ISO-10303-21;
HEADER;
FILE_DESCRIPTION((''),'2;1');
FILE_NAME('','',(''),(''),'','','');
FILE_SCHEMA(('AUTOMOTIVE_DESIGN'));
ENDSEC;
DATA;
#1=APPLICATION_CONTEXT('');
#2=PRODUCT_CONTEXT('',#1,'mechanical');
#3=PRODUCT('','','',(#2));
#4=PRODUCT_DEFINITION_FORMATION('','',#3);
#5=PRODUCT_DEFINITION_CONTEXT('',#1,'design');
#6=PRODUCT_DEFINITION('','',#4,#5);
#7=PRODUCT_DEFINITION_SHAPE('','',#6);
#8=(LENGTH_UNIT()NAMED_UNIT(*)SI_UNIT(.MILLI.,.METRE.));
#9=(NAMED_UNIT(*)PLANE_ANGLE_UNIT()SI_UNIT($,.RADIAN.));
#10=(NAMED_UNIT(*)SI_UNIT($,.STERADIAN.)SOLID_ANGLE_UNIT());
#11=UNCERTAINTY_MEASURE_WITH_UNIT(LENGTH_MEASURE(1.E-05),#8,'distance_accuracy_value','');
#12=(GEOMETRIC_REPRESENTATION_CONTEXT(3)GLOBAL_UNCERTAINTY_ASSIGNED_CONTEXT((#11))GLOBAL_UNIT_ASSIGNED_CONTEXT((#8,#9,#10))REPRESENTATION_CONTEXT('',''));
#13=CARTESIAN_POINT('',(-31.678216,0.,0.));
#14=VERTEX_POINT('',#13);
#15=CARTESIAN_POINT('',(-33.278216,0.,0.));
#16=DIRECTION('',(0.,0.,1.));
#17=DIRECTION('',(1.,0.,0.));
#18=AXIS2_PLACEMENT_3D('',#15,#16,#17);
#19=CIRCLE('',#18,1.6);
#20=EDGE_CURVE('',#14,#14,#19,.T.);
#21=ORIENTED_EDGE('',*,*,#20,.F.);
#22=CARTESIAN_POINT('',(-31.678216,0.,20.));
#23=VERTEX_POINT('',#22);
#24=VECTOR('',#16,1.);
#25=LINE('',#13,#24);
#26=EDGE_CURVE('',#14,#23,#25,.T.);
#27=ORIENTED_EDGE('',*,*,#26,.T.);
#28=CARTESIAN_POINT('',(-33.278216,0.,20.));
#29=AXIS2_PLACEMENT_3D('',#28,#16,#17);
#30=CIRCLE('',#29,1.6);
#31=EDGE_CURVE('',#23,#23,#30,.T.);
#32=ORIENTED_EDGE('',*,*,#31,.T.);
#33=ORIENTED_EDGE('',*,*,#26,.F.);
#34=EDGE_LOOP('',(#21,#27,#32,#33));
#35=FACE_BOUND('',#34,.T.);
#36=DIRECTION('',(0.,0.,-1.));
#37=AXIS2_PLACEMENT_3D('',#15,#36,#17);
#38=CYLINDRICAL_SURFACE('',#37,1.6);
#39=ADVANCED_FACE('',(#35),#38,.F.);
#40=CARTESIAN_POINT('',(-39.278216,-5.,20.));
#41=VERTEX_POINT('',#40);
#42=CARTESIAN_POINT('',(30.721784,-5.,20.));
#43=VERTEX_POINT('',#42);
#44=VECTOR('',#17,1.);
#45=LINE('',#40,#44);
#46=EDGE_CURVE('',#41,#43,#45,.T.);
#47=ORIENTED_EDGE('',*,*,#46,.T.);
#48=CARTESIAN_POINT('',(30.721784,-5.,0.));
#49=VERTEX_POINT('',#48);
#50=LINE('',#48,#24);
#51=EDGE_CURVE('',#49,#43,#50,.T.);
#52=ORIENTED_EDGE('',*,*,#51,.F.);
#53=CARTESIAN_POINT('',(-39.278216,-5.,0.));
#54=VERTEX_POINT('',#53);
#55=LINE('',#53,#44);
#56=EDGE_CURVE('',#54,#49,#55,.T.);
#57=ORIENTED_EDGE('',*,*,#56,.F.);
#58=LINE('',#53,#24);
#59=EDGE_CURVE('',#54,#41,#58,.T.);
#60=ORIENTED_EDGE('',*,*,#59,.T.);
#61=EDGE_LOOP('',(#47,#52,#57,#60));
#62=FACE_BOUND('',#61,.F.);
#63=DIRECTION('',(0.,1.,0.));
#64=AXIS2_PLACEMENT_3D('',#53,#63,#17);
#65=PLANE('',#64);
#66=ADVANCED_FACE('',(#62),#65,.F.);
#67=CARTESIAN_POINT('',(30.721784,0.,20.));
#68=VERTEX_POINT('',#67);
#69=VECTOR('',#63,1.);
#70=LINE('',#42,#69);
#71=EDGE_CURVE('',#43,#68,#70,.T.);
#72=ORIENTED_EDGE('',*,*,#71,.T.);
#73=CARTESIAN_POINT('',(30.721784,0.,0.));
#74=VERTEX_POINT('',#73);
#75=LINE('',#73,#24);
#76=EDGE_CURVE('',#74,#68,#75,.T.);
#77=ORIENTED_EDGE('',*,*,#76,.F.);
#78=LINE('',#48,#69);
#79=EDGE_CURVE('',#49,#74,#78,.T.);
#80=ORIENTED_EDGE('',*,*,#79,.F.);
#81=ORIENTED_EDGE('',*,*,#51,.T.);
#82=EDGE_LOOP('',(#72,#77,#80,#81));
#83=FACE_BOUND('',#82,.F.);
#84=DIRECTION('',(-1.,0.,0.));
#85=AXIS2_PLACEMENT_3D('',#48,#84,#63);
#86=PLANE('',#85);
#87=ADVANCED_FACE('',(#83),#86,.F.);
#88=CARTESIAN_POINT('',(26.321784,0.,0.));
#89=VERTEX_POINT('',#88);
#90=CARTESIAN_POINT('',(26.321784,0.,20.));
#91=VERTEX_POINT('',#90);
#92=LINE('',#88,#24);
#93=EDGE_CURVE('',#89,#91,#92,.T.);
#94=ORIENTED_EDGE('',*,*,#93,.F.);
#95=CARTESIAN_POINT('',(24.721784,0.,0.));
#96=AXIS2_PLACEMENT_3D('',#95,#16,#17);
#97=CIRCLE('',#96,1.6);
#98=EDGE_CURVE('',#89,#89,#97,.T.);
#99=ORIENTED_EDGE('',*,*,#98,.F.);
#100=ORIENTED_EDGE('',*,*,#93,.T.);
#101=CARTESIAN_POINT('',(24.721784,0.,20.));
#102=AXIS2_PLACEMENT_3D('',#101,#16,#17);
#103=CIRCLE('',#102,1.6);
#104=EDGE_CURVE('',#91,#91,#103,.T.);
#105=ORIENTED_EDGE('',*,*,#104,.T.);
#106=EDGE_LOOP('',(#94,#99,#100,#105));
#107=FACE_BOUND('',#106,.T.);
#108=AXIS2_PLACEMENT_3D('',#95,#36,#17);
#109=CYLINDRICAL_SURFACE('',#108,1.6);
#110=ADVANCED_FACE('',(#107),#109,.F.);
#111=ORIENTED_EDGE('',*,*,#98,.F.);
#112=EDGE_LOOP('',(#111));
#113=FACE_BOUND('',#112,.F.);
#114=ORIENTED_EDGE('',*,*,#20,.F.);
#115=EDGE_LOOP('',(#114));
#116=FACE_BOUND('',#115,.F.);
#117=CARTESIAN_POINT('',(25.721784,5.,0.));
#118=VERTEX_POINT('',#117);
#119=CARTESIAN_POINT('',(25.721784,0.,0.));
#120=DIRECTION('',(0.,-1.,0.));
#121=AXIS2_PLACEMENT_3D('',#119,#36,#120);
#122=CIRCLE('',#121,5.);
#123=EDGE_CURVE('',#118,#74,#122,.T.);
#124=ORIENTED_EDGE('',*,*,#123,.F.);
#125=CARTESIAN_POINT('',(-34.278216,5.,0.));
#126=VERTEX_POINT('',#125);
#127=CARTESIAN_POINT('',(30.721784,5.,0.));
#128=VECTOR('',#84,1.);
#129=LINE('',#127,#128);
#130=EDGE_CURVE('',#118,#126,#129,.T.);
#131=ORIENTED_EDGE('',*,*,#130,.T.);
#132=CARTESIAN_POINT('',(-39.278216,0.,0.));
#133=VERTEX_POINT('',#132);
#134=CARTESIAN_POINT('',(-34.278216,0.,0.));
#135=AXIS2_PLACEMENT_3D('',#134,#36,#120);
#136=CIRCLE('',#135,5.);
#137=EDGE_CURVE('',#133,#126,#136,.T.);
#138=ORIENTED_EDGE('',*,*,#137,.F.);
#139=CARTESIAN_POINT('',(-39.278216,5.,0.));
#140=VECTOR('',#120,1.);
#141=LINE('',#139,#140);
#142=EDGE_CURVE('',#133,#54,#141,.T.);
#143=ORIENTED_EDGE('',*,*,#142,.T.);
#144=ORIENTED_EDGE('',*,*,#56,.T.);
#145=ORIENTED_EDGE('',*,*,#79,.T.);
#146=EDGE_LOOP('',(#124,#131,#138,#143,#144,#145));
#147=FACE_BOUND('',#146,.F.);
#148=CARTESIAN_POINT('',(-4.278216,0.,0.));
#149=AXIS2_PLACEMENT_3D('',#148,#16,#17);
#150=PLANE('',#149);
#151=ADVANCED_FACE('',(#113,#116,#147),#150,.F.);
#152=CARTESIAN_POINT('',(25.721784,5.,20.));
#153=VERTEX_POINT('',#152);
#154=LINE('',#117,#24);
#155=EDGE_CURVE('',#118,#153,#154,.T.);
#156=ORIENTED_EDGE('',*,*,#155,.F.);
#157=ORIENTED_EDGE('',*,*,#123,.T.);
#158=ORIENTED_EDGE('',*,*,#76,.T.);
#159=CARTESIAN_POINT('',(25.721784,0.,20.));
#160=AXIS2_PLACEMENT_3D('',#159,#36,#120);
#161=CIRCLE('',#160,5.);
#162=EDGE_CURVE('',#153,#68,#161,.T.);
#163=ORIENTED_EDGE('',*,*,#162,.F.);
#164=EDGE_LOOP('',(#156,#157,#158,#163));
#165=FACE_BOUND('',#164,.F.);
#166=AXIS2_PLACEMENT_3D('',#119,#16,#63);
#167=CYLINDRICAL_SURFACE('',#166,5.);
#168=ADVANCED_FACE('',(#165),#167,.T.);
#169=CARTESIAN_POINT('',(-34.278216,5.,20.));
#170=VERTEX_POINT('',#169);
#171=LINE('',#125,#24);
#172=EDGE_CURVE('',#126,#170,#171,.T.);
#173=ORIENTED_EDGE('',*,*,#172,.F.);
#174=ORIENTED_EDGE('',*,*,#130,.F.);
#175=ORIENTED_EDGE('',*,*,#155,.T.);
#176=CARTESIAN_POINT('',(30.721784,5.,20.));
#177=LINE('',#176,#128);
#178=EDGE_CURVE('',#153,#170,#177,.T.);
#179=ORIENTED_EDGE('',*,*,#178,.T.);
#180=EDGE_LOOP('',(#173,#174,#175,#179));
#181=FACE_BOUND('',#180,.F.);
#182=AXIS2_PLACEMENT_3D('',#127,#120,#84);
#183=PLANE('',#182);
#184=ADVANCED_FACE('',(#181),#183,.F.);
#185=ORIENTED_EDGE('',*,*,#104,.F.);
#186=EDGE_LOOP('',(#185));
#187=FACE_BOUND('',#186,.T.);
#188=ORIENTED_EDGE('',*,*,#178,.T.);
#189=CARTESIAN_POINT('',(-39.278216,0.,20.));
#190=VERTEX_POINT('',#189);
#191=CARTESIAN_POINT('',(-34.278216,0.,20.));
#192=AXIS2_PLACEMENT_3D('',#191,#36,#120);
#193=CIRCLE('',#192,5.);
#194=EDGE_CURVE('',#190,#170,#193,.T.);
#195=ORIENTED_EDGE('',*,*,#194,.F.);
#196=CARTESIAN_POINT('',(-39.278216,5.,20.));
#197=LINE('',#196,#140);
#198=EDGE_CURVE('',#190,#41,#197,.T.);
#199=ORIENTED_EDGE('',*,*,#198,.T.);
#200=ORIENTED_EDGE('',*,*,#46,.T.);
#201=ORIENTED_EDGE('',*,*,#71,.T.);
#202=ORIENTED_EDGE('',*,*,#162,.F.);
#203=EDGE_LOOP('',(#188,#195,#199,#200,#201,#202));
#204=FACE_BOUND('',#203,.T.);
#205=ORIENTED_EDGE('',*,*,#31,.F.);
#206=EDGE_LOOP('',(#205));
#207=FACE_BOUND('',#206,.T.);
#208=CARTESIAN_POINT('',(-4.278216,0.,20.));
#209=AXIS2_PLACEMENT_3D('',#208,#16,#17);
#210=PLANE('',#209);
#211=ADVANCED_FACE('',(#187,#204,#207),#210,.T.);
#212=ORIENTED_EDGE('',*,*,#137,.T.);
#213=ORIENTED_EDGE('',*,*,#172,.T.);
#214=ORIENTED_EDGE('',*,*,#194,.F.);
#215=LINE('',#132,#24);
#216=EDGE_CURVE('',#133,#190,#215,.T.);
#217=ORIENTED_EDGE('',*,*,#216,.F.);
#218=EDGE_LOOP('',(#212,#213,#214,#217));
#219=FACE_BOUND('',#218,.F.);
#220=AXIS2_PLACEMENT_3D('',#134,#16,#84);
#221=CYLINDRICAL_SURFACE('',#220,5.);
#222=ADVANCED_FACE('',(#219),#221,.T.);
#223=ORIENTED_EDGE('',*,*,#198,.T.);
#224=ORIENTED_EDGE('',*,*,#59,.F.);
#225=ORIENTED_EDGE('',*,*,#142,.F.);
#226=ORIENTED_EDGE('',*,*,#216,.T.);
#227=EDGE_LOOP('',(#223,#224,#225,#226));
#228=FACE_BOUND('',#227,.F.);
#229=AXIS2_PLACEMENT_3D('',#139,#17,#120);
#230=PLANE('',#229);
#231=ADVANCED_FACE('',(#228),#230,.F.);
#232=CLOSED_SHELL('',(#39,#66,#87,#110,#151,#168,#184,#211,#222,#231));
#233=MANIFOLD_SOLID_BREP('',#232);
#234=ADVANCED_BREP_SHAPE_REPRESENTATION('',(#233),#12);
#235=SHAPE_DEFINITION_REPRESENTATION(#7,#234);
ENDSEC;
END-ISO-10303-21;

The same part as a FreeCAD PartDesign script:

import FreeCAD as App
import Part
import Sketcher
from FreeCAD import Vector
Q = App.Units.Quantity


def edges_at(feature, points):
    """Names of the edges that pass closest to the given points."""
    edges = feature.Shape.Edges
    near = lambda p: min(range(len(edges)), key=lambda i: edges[i].distToShape(Part.Vertex(*p))[0])
    return sorted({f"Edge{near(p) + 1}" for p in points})

doc = App.newDocument("Part")
body = doc.addObject("PartDesign::Body", "Body")

sketch1 = doc.addObject("Sketcher::SketchObject", "Sketch")
body.addObject(sketch1)
sketch1.AttachmentSupport = (doc.XY_Plane, [""])
sketch1.MapMode = "FlatFace"
sketch1.addGeometry([
    Part.LineSegment(Vector(-39.3, 5, 0), Vector(-39.3, -5, 0)),
    Part.LineSegment(Vector(-39.3, -5, 0), Vector(30.7, -5, 0)),
    Part.LineSegment(Vector(30.7, -5, 0), Vector(30.7, 5, 0)),
    Part.LineSegment(Vector(30.7, 5, 0), Vector(-39.3, 5, 0)),
    Part.Circle(Vector(-33.3, 0, 0), Vector(0, 0, 1), 1.6),
    Part.Circle(Vector(24.7, 0, 0), Vector(0, 0, 1), 1.6),
], False)
sketch1.addConstraint([
    Sketcher.Constraint("Coincident", 0, 2, 1, 1),
    Sketcher.Constraint("Coincident", 1, 2, 2, 1),
    Sketcher.Constraint("Coincident", 2, 2, 3, 1),
    Sketcher.Constraint("Coincident", 3, 2, 0, 1),
    Sketcher.Constraint("Vertical", 0),
    Sketcher.Constraint("Horizontal", 1),
    Sketcher.Constraint("Vertical", 2),
    Sketcher.Constraint("Horizontal", 3),
    Sketcher.Constraint("Equal", 4, 5),
    Sketcher.Constraint("PointOnObject", 4, 3, -1),
    Sketcher.Constraint("PointOnObject", 5, 3, -1),
    Sketcher.Constraint("Diameter", 4, Q("3.2 mm")),
    Sketcher.Constraint("DistanceX", 1, 1, 1, 2, Q("70 mm")),
    Sketcher.Constraint("DistanceY", 0, 2, 0, 1, Q("10 mm")),
    Sketcher.Constraint("DistanceY", 0, 2, -1, 1, Q("5 mm")),
    Sketcher.Constraint("DistanceX", 4, 3, 5, 3, Q("58 mm")),
    Sketcher.Constraint("DistanceX", 0, 2, 4, 3, Q("6 mm")),
    Sketcher.Constraint("DistanceX", 4, 3, -1, 1, Q("33.278216 mm")),
])
pad1 = doc.addObject("PartDesign::Pad", "Pad")
body.addObject(pad1)
pad1.Profile = sketch1
pad1.Length = 20
doc.recompute()

fillet = doc.addObject("PartDesign::Fillet", "Fillet")
body.addObject(fillet)
fillet.Base = (pad1, edges_at(pad1, [(-39.278, 5, 10), (30.722, 5, 10)]))
fillet.Radius = 5

doc.recompute()
